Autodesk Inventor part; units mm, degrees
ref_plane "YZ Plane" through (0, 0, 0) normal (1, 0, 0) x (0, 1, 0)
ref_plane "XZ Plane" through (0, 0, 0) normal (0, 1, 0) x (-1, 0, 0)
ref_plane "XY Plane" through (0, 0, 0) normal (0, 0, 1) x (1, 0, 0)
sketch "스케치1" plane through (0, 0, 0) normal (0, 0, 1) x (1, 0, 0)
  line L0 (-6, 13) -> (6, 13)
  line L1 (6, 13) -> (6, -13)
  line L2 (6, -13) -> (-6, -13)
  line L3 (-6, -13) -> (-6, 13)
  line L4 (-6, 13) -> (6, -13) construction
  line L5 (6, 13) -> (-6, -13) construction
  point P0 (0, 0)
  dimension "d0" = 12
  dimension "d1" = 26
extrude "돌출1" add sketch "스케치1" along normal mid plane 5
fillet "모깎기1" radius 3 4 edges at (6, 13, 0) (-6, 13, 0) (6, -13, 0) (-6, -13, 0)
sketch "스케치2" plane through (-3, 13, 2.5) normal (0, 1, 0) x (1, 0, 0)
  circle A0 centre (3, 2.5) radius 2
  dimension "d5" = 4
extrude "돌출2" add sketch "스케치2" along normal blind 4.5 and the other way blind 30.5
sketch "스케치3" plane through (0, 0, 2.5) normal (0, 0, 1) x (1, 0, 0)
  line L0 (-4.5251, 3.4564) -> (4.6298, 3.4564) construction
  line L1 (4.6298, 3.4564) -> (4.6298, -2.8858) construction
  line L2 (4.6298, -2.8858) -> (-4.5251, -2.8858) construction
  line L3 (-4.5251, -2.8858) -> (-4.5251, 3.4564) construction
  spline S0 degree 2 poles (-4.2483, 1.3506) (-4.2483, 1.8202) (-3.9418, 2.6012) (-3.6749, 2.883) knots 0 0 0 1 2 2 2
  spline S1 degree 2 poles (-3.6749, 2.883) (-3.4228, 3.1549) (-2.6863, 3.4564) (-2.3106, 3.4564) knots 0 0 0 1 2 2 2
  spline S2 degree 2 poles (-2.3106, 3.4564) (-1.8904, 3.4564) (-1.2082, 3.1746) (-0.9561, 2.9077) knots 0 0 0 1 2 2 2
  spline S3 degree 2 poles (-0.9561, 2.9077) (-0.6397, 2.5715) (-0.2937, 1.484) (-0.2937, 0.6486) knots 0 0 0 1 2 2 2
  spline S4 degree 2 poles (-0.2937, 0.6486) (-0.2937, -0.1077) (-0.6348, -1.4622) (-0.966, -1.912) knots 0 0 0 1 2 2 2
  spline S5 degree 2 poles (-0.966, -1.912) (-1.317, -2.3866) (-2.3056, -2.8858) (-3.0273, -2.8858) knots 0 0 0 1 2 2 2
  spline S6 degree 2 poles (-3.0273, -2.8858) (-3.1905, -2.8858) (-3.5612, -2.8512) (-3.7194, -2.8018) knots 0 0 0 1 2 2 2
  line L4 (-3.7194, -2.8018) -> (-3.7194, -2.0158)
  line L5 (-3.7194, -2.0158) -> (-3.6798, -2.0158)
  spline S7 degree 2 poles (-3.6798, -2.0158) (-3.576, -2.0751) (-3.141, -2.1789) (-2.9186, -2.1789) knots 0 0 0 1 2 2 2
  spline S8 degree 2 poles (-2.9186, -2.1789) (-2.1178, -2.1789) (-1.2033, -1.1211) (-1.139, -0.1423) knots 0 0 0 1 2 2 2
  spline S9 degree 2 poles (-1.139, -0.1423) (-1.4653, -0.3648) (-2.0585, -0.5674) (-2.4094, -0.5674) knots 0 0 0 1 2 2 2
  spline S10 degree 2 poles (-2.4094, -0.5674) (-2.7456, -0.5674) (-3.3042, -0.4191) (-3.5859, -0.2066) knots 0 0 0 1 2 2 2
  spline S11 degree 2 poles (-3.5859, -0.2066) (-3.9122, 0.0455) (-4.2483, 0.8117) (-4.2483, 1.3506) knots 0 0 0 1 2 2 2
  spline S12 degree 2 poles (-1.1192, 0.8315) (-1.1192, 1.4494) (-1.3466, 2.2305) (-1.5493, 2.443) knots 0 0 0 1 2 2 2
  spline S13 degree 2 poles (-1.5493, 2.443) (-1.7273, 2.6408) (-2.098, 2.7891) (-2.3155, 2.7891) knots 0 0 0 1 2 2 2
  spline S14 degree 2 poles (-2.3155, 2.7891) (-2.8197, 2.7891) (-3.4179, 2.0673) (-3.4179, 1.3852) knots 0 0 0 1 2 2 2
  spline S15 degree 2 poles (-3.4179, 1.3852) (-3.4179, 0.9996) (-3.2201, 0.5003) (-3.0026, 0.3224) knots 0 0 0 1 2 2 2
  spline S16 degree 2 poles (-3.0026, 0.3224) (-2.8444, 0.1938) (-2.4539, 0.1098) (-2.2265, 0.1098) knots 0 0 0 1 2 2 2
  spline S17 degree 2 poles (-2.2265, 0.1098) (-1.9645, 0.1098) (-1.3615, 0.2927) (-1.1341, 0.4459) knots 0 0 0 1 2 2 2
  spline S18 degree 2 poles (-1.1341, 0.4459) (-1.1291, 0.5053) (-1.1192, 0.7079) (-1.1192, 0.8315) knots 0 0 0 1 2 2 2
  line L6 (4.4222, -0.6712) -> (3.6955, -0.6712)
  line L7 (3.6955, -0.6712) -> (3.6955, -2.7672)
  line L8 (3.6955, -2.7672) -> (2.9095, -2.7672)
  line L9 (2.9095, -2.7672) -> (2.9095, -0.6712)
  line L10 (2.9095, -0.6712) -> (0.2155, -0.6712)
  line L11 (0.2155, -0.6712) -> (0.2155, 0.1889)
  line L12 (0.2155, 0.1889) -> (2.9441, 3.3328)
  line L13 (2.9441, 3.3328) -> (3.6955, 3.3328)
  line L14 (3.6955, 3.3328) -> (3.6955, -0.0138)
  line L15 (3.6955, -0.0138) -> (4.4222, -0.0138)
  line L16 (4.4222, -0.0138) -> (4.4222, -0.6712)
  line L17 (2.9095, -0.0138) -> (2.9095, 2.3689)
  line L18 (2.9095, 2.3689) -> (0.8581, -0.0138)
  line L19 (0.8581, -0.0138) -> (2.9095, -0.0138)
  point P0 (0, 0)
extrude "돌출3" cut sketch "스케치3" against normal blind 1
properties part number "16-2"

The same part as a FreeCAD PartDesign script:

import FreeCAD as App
import Part
import Sketcher

V = App.Vector
Q = App.Units.Quantity


def edges_at(feature, points):
    """Names of the edges that pass closest to the given points."""
    edges = feature.Shape.Edges
    near = lambda p: min(range(len(edges)), key=lambda i: edges[i].distToShape(Part.Vertex(*p))[0])
    return sorted({f"Edge{near(p) + 1}" for p in points})

doc = App.newDocument("Part")
body = doc.addObject("PartDesign::Body", "Body")

# Sketch on XY plane
sketch1 = body.newObject("Sketcher::SketchObject", "Sketch")
sketch1.AttachmentSupport = (doc.getObject("XY_Plane"), [""])
sketch1.MapMode = "FlatFace"
sketch1.addGeometry([
    Part.LineSegment(V(6, 13, 0), V(-6, 13, 0)),
    Part.LineSegment(V(-6, 13, 0), V(-6, -13, 0)),
    Part.LineSegment(V(-6, -13, 0), V(6, -13, 0)),
    Part.LineSegment(V(6, -13, 0), V(6, 13, 0)),
], False)
sketch1.addConstraint([
    Sketcher.Constraint("Coincident", 0, 2, 1, 1),
    Sketcher.Constraint("Coincident", 1, 2, 2, 1),
    Sketcher.Constraint("Coincident", 2, 2, 3, 1),
    Sketcher.Constraint("Coincident", 3, 2, 0, 1),
    Sketcher.Constraint("Horizontal", 0),
    Sketcher.Constraint("Vertical", 1),
    Sketcher.Constraint("Horizontal", 2),
    Sketcher.Constraint("Vertical", 3),
    Sketcher.Constraint("Symmetric", 0, 2, 2, 2, -1, 1),
    Sketcher.Constraint("DistanceX", 0, 2, 0, 1, Q("12 mm")),
    Sketcher.Constraint("DistanceY", 1, 2, 1, 1, Q("26 mm")),
])
pad1 = body.newObject("PartDesign::Pad", "Pad")
pad1.Profile = sketch1
pad1.Length = 5
pad1.Midplane = True
doc.recompute()

fillet = body.newObject("PartDesign::Fillet", "Fillet")
fillet.Base = (pad1, edges_at(pad1, [
    (6, 13, 0),
    (-6, 13, 0),
    (6, -13, 0),
    (-6, -13, 0),
]))
fillet.Radius = 3

# Sketch on XZ plane
sketch2 = body.newObject("Sketcher::SketchObject", "Sketch001")
sketch2.AttachmentSupport = (doc.getObject("XZ_Plane"), [""])
sketch2.MapMode = "FlatFace"
sketch2.AttachmentOffset = App.Placement(V(0, 0, -13), App.Rotation())
sketch2.addGeometry(Part.Circle(V(0, 0, 0), V(0, 0, 1), 2), False)
sketch2.addConstraint([
    Sketcher.Constraint("Coincident", 0, 3, -1, 1),
    Sketcher.Constraint("Diameter", 0, Q("4 mm")),
])
pad2 = body.newObject("PartDesign::Pad", "Pad001")
pad2.Profile = sketch2
pad2.Type = "TwoLengths"
pad2.Length = 4.5
pad2.Length2 = 30.5
pad2.Reversed = True

# Sketch on XY plane
sketch3 = body.newObject("Sketcher::SketchObject", "Sketch002")
sketch3.AttachmentSupport = (doc.getObject("XY_Plane"), [""])
sketch3.MapMode = "FlatFace"
sketch3.AttachmentOffset = App.Placement(V(0, 0, 2.5), App.Rotation())
sketch3.addGeometry([
    Part.BSplineCurve([V(-4.2483, 1.3506, 0), V(-4.2483, 1.8202, 0), V(-3.9418, 2.6012, 0), V(-3.6749, 2.883, 0)], [3, 1, 3], [0, 1, 2], False, 2, [1, 1, 1, 1], False),  # 0
    Part.BSplineCurve([V(-3.5859, -0.2066, 0), V(-3.9122, 0.0455, 0), V(-4.2483, 0.8117, 0), V(-4.2483, 1.3506, 0)], [3, 1, 3], [0, 1, 2], False, 2, [1, 1, 1, 1], False),  # 1
    Part.BSplineCurve([V(-2.4094, -0.5674, 0), V(-2.7456, -0.5674, 0), V(-3.3042, -0.4191, 0), V(-3.5859, -0.2066, 0)], [3, 1, 3], [0, 1, 2], False, 2, [1, 1, 1, 1], False),  # 2
    Part.BSplineCurve([V(-1.139, -0.1423, 0), V(-1.4653, -0.3648, 0), V(-2.0585, -0.5674, 0), V(-2.4094, -0.5674, 0)], [3, 1, 3], [0, 1, 2], False, 2, [1, 1, 1, 1], False),  # 3
    Part.BSplineCurve([V(-2.9186, -2.1789, 0), V(-2.1178, -2.1789, 0), V(-1.2033, -1.1211, 0), V(-1.139, -0.1423, 0)], [3, 1, 3], [0, 1, 2], False, 2, [1, 1, 1, 1], False),  # 4
    Part.BSplineCurve([V(-3.6798, -2.0158, 0), V(-3.576, -2.0751, 0), V(-3.141, -2.1789, 0), V(-2.9186, -2.1789, 0)], [3, 1, 3], [0, 1, 2], False, 2, [1, 1, 1, 1], False),  # 5
    Part.LineSegment(V(-3.6798, -2.0158, 0), V(-3.7194, -2.0158, 0)),  # 6
    Part.LineSegment(V(-3.7194, -2.0158, 0), V(-3.7194, -2.8018, 0)),  # 7
    Part.BSplineCurve([V(-3.0273, -2.8858, 0), V(-3.1905, -2.8858, 0), V(-3.5612, -2.8512, 0), V(-3.7194, -2.8018, 0)], [3, 1, 3], [0, 1, 2], False, 2, [1, 1, 1, 1], False),  # 8
    Part.BSplineCurve([V(-0.966, -1.912, 0), V(-1.317, -2.3866, 0), V(-2.3056, -2.8858, 0), V(-3.0273, -2.8858, 0)], [3, 1, 3], [0, 1, 2], False, 2, [1, 1, 1, 1], False),  # 9
    Part.BSplineCurve([V(-0.2937, 0.6486, 0), V(-0.2937, -0.1077, 0), V(-0.6348, -1.4622, 0), V(-0.966, -1.912, 0)], [3, 1, 3], [0, 1, 2], False, 2, [1, 1, 1, 1], False),  # 10
    Part.BSplineCurve([V(-0.9561, 2.9077, 0), V(-0.6397, 2.5715, 0), V(-0.2937, 1.484, 0), V(-0.2937, 0.6486, 0)], [3, 1, 3], [0, 1, 2], False, 2, [1, 1, 1, 1], False),  # 11
    Part.BSplineCurve([V(-2.3106, 3.4564, 0), V(-1.8904, 3.4564, 0), V(-1.2082, 3.1746, 0), V(-0.9561, 2.9077, 0)], [3, 1, 3], [0, 1, 2], False, 2, [1, 1, 1, 1], False),  # 12
    Part.BSplineCurve([V(-3.6749, 2.883, 0), V(-3.4228, 3.1549, 0), V(-2.6863, 3.4564, 0), V(-2.3106, 3.4564, 0)], [3, 1, 3], [0, 1, 2], False, 2, [1, 1, 1, 1], False),  # 13
    Part.BSplineCurve([V(-1.1192, 0.8315, 0), V(-1.1192, 1.4494, 0), V(-1.3466, 2.2305, 0), V(-1.5493, 2.443, 0)], [3, 1, 3], [0, 1, 2], False, 2, [1, 1, 1, 1], False),  # 14
    Part.BSplineCurve([V(-1.1341, 0.4459, 0), V(-1.1291, 0.5053, 0), V(-1.1192, 0.7079, 0), V(-1.1192, 0.8315, 0)], [3, 1, 3], [0, 1, 2], False, 2, [1, 1, 1, 1], False),  # 15
    Part.BSplineCurve([V(-2.2265, 0.1098, 0), V(-1.9645, 0.1098, 0), V(-1.3615, 0.2927, 0), V(-1.1341, 0.4459, 0)], [3, 1, 3], [0, 1, 2], False, 2, [1, 1, 1, 1], False),  # 16
    Part.BSplineCurve([V(-3.0026, 0.3224, 0), V(-2.8444, 0.1938, 0), V(-2.4539, 0.1098, 0), V(-2.2265, 0.1098, 0)], [3, 1, 3], [0, 1, 2], False, 2, [1, 1, 1, 1], False),  # 17
    Part.BSplineCurve([V(-3.4179, 1.3852, 0), V(-3.4179, 0.9996, 0), V(-3.2201, 0.5003, 0), V(-3.0026, 0.3224, 0)], [3, 1, 3], [0, 1, 2], False, 2, [1, 1, 1, 1], False),  # 18
    Part.BSplineCurve([V(-2.3155, 2.7891, 0), V(-2.8197, 2.7891, 0), V(-3.4179, 2.0673, 0), V(-3.4179, 1.3852, 0)], [3, 1, 3], [0, 1, 2], False, 2, [1, 1, 1, 1], False),  # 19
    Part.BSplineCurve([V(-1.5493, 2.443, 0), V(-1.7273, 2.6408, 0), V(-2.098, 2.7891, 0), V(-2.3155, 2.7891, 0)], [3, 1, 3], [0, 1, 2], False, 2, [1, 1, 1, 1], False),  # 20
    Part.LineSegment(V(3.6955, -0.6712, 0), V(4.4222, -0.6712, 0)),  # 21
    Part.LineSegment(V(4.4222, -0.6712, 0), V(4.4222, -0.0138, 0)),  # 22
    Part.LineSegment(V(4.4222, -0.0138, 0), V(3.6955, -0.0138, 0)),  # 23
    Part.LineSegment(V(3.6955, -0.0138, 0), V(3.6955, 3.3328, 0)),  # 24
    Part.LineSegment(V(3.6955, 3.3328, 0), V(2.9441, 3.3328, 0)),  # 25
    Part.LineSegment(V(2.9441, 3.3328, 0), V(0.2155, 0.1889, 0)),  # 26
    Part.LineSegment(V(0.2155, 0.1889, 0), V(0.2155, -0.6712, 0)),  # 27
    Part.LineSegment(V(0.2155, -0.6712, 0), V(2.9095, -0.6712, 0)),  # 28
    Part.LineSegment(V(2.9095, -0.6712, 0), V(2.9095, -2.7672, 0)),  # 29
    Part.LineSegment(V(2.9095, -2.7672, 0), V(3.6955, -2.7672, 0)),  # 30
    Part.LineSegment(V(3.6955, -2.7672, 0), V(3.6955, -0.6712, 0)),  # 31
    Part.LineSegment(V(2.9095, 2.3689, 0), V(2.9095, -0.0138, 0)),  # 32
    Part.LineSegment(V(2.9095, -0.0138, 0), V(0.8581, -0.0138, 0)),  # 33
    Part.LineSegment(V(0.8581, -0.0138, 0), V(2.9095, 2.3689, 0)),  # 34
], False)
sketch3.addConstraint([
    Sketcher.Constraint("Block", 0),
    Sketcher.Constraint("Block", 1),
    Sketcher.Constraint("Block", 2),
    Sketcher.Constraint("Block", 3),
    Sketcher.Constraint("Block", 4),
    Sketcher.Constraint("Block", 5),
    Sketcher.Constraint("Block", 8),
    Sketcher.Constraint("Block", 9),
    Sketcher.Constraint("Block", 10),
    Sketcher.Constraint("Block", 11),
    Sketcher.Constraint("Block", 12),
    Sketcher.Constraint("Block", 13),
    Sketcher.Constraint("Block", 14),
    Sketcher.Constraint("Block", 15),
    Sketcher.Constraint("Block", 16),
    Sketcher.Constraint("Block", 17),
    Sketcher.Constraint("Block", 18),
    Sketcher.Constraint("Block", 19),
    Sketcher.Constraint("Block", 20),
    Sketcher.Constraint("Coincident", 5, 1, 6, 1),
    Sketcher.Constraint("Coincident", 6, 2, 7, 1),
    Sketcher.Constraint("Coincident", 7, 2, 8, 2),
    Sketcher.Constraint("Coincident", 21, 2, 22, 1),
    Sketcher.Constraint("Coincident", 22, 2, 23, 1),
    Sketcher.Constraint("Coincident", 23, 2, 24, 1),
    Sketcher.Constraint("Coincident", 24, 2, 25, 1),
    Sketcher.Constraint("Coincident", 25, 2, 26, 1),
    Sketcher.Constraint("Coincident", 26, 2, 27, 1),
    Sketcher.Constraint("Coincident", 27, 2, 28, 1),
    Sketcher.Constraint("Coincident", 28, 2, 29, 1),
    Sketcher.Constraint("Coincident", 29, 2, 30, 1),
    Sketcher.Constraint("Coincident", 30, 2, 31, 1),
    Sketcher.Constraint("Coincident", 31, 2, 21, 1),
    Sketcher.Constraint("Coincident", 32, 2, 33, 1),
    Sketcher.Constraint("Coincident", 33, 2, 34, 1),
    Sketcher.Constraint("Coincident", 34, 2, 32, 1),
    Sketcher.Constraint("Horizontal", 6),
    Sketcher.Constraint("Vertical", 7),
    Sketcher.Constraint("Horizontal", 21),
    Sketcher.Constraint("Vertical", 22),
    Sketcher.Constraint("Horizontal", 23),
    Sketcher.Constraint("Vertical", 24),
    Sketcher.Constraint("Horizontal", 25),
    Sketcher.Constraint("Vertical", 27),
    Sketcher.Constraint("Horizontal", 28),
    Sketcher.Constraint("Vertical", 29),
    Sketcher.Constraint("Horizontal", 30),
    Sketcher.Constraint("Vertical", 31),
    Sketcher.Constraint("Vertical", 32),
    Sketcher.Constraint("Horizontal", 33),
    Sketcher.Constraint("Horizontal", 21, 2, 27, 2),
    Sketcher.Constraint("Horizontal", 23, 2, 32, 2),
    Sketcher.Constraint("Vertical", 24, 2, 30, 2),
    Sketcher.Constraint("Vertical", 29, 2, 32, 2),
    Sketcher.Constraint("Equal", 30, 7),
    Sketcher.Constraint("DistanceY", 27, 2, 27, 1, Q("0.86 mm")),
    Sketcher.Constraint("DistanceX", 28, 1, 28, 2, Q("2.694 mm")),
    Sketcher.Constraint("DistanceY", 29, 2, 29, 1, Q("2.096 mm")),
    Sketcher.Constraint("DistanceX", 21, 1, 21, 2, Q("0.7267 mm")),
    Sketcher.Constraint("DistanceX", 25, 2, 25, 1, Q("0.7514 mm")),
    Sketcher.Constraint("DistanceX", 33, 2, 33, 1, Q("2.0514 mm")),
    Sketcher.Constraint("DistanceY", 22, 1, 22, 2, Q("0.6574 mm")),
    Sketcher.Constraint("DistanceY", 24, 1, 24, 2, Q("3.3466 mm")),
    Sketcher.Constraint("DistanceY", 32, 2, 32, 1, Q("2.3827 mm")),
    Sketcher.Constraint("DistanceX", -1, 1, 25, 2, Q("2.944 mm")),
    Sketcher.Constraint("DistanceY", -1, 1, 26, 2, Q("0.189 mm")),
])
pocket1 = body.newObject("PartDesign::Pocket", "Pocket")
pocket1.Profile = sketch3
pocket1.Length = 1

doc.recompute()
